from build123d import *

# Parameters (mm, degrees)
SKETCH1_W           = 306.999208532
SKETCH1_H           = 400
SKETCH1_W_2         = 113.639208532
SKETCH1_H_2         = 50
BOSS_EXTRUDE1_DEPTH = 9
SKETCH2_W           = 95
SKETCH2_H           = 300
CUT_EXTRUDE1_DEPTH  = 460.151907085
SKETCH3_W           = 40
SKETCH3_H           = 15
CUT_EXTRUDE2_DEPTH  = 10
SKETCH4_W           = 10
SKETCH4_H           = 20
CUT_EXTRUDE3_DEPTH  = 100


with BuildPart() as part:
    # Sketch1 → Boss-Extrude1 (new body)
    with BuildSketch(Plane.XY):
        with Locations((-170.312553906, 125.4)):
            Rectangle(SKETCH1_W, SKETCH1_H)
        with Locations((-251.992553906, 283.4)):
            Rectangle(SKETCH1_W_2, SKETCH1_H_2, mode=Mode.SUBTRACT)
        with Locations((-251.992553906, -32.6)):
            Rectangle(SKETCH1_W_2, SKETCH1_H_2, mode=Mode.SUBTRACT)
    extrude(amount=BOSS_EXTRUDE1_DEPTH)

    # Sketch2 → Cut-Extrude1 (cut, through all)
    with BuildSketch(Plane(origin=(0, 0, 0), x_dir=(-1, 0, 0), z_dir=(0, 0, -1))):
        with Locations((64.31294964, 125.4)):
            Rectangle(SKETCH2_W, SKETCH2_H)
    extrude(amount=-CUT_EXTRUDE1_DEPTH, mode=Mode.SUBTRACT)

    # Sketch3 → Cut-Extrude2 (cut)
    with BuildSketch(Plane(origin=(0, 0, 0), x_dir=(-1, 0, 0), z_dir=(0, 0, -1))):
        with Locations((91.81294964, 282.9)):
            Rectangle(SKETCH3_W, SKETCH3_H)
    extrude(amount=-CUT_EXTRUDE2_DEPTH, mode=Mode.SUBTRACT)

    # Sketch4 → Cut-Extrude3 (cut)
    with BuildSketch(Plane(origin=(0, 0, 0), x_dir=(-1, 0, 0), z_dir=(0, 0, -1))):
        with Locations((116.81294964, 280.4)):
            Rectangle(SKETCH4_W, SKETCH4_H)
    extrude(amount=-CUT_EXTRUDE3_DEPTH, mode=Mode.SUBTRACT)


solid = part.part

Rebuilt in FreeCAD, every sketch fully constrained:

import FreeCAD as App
import Part
import Sketcher

V = App.Vector


def add_polygon(sketch, points):
    """Adds a closed chain of lines whose ends are joined by coincident constraints."""
    first, n = sketch.GeometryCount, len(points)
    for a, b in zip(points, points[1:] + points[:1]):
        sketch.addGeometry(Part.LineSegment(App.Vector(*a, 0), App.Vector(*b, 0)), False)
    for i in range(n):
        sketch.addConstraint(Sketcher.Constraint("Coincident", first + i, 2, first + (i + 1) % n, 1))

doc = App.newDocument("Part")
body = doc.addObject("PartDesign::Body", "Body")

sketch1 = body.newObject("Sketcher::SketchObject", "Sketch")
sketch1.AttachmentSupport = (doc.getObject("XY_Plane"), [""])
sketch1.MapMode = "FlatFace"
add_polygon(sketch1, [(-324, 325), (-324, -75), (-17, -75), (-17, 325)])
add_polygon(sketch1, [(-195, -58), (-309, -58), (-309, -8), (-195, -8)])
add_polygon(sketch1, [(-195, 258), (-309, 258), (-309, 308), (-195, 308)])
sketch1.addConstraint([
    Sketcher.Constraint("Vertical", 0),
    Sketcher.Constraint("Horizontal", 1),
    Sketcher.Constraint("Vertical", 2),
    Sketcher.Constraint("Horizontal", 3),
    Sketcher.Constraint("Horizontal", 4),
    Sketcher.Constraint("Vertical", 5),
    Sketcher.Constraint("Horizontal", 6),
    Sketcher.Constraint("Vertical", 7),
    Sketcher.Constraint("Horizontal", 8),
    Sketcher.Constraint("Vertical", 9),
    Sketcher.Constraint("Horizontal", 10),
    Sketcher.Constraint("Vertical", 11),
    Sketcher.Constraint("Vertical", 5, 2, 8, 2),
    Sketcher.Constraint("Vertical", 7, 2, 10, 2),
    Sketcher.Constraint("Equal", 7, 9),
    Sketcher.Constraint("DistanceY", 0, 2, 0, 1, 400.0),
    Sketcher.Constraint("DistanceY", 5, 1, 5, 2, 50.0),
    Sketcher.Constraint("DistanceX", 0, 2, 4, 2, 15.0),
    Sketcher.Constraint("DistanceY", 0, 2, 4, 2, 17.0),
    Sketcher.Constraint("DistanceY", 8, 2, 3, 2, 67.0),
    Sketcher.Constraint("DistanceY", 0, 2, -1, 1, 74.6),
    Sketcher.Constraint("DistanceX", 6, 2, 1, 2, 178.36),
    Sketcher.Constraint("DistanceX", 1, 1, 1, 2, 306.999209),
    Sketcher.Constraint("DistanceX", 0, 2, -1, 1, 323.812158),
])
pad1 = body.newObject("PartDesign::Pad", "Pad")
pad1.Profile = sketch1
pad1.Length = 9

sketch2 = body.newObject("Sketcher::SketchObject", "Sketch001")
sketch2.AttachmentSupport = (doc.getObject("XY_Plane"), [""])
sketch2.MapMode = "FlatFace"
add_polygon(sketch2, [(-17, 275), (-17, -25), (-112, -25), (-112, 275)])
sketch2.addConstraint([
    Sketcher.Constraint("Vertical", 0),
    Sketcher.Constraint("Horizontal", 1),
    Sketcher.Constraint("Vertical", 2),
    Sketcher.Constraint("Horizontal", 3),
    Sketcher.Constraint("DistanceX", 1, 2, 1, 1, 95.0),
    Sketcher.Constraint("DistanceY", 0, 2, 0, 1, 300.0),
    Sketcher.Constraint("DistanceY", 0, 2, -1, 1, 24.6),
    Sketcher.Constraint("DistanceX", 0, 2, -1, 1, 16.81295),
])
pocket1 = body.newObject("PartDesign::Pocket", "Pocket")
pocket1.Profile = sketch2
pocket1.Type = "ThroughAll"
pocket1.Reversed = True

sketch3 = body.newObject("Sketcher::SketchObject", "Sketch002")
sketch3.AttachmentSupport = (doc.getObject("XY_Plane"), [""])
sketch3.MapMode = "FlatFace"
add_polygon(sketch3, [(-72, 290), (-72, 275), (-112, 275), (-112, 290)])
sketch3.addConstraint([
    Sketcher.Constraint("Vertical", 0),
    Sketcher.Constraint("Horizontal", 1),
    Sketcher.Constraint("Vertical", 2),
    Sketcher.Constraint("Horizontal", 3),
    Sketcher.Constraint("DistanceX", 1, 2, 1, 1, 40.0),
    Sketcher.Constraint("DistanceY", 0, 2, 0, 1, 15.0),
    Sketcher.Constraint("DistanceY", -1, 1, 0, 2, 275.4),
    Sketcher.Constraint("DistanceX", 0, 2, -1, 1, 71.81295),
])
pocket2 = body.newObject("PartDesign::Pocket", "Pocket001")
pocket2.Profile = sketch3
pocket2.Length = 10
pocket2.Reversed = True

sketch4 = body.newObject("Sketcher::SketchObject", "Sketch003")
sketch4.AttachmentSupport = (doc.getObject("XY_Plane"), [""])
sketch4.MapMode = "FlatFace"
add_polygon(sketch4, [(-112, 290), (-112, 270), (-122, 270), (-122, 290)])
sketch4.addConstraint([
    Sketcher.Constraint("Vertical", 0),
    Sketcher.Constraint("Horizontal", 1),
    Sketcher.Constraint("Vertical", 2),
    Sketcher.Constraint("Horizontal", 3),
    Sketcher.Constraint("DistanceX", 1, 2, 1, 1, 10.0),
    Sketcher.Constraint("DistanceY", 0, 2, 0, 1, 20.0),
    Sketcher.Constraint("DistanceY", -1, 1, 0, 2, 270.4),
    Sketcher.Constraint("DistanceX", 0, 2, -1, 1, 111.81295),
])
pocket3 = body.newObject("PartDesign::Pocket", "Pocket002")
pocket3.Profile = sketch4
pocket3.Length = 100
pocket3.Reversed = True

doc.recompute()
